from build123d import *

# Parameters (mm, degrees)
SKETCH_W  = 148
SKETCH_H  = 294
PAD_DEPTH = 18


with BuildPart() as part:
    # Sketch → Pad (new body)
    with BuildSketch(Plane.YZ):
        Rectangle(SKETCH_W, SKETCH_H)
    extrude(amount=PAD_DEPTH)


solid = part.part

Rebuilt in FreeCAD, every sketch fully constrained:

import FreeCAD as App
import Part
import Sketcher

V = App.Vector
Q = App.Units.Quantity


def add_polygon(sketch, points):
    """Adds a closed chain of lines whose ends are joined by coincident constraints."""
    first, n = sketch.GeometryCount, len(points)
    for a, b in zip(points, points[1:] + points[:1]):
        sketch.addGeometry(Part.LineSegment(App.Vector(*a, 0), App.Vector(*b, 0)), False)
    for i in range(n):
        sketch.addConstraint(Sketcher.Constraint("Coincident", first + i, 2, first + (i + 1) % n, 1))

doc = App.newDocument("Part")
body = doc.addObject("PartDesign::Body", "Body")

sketch1 = body.newObject("Sketcher::SketchObject", "Sketch")
sketch1.AttachmentSupport = (doc.getObject("YZ_Plane"), [""])
sketch1.MapMode = "FlatFace"
add_polygon(sketch1, [(-74, 147), (-74, -147), (74, -147), (74, 147)])
sketch1.addConstraint(Sketcher.Constraint("Vertical", 0))
sketch1.addConstraint(Sketcher.Constraint("Horizontal", 1))
sketch1.addConstraint(Sketcher.Constraint("Vertical", 2))
sketch1.addConstraint(Sketcher.Constraint("Horizontal", 3))
sketch1.addConstraint(Sketcher.Constraint("Symmetric", 0, 2, 2, 2, -1, 1))
sketch1.addConstraint(Sketcher.Constraint("DistanceX", 1, 1, 1, 2, Q("148 mm")))
sketch1.addConstraint(Sketcher.Constraint("DistanceY", 0, 2, 0, 1, Q("294 mm")))
pad1 = body.newObject("PartDesign::Pad", "Pad")
pad1.Profile = sketch1
pad1.Length = 18

doc.recompute()
